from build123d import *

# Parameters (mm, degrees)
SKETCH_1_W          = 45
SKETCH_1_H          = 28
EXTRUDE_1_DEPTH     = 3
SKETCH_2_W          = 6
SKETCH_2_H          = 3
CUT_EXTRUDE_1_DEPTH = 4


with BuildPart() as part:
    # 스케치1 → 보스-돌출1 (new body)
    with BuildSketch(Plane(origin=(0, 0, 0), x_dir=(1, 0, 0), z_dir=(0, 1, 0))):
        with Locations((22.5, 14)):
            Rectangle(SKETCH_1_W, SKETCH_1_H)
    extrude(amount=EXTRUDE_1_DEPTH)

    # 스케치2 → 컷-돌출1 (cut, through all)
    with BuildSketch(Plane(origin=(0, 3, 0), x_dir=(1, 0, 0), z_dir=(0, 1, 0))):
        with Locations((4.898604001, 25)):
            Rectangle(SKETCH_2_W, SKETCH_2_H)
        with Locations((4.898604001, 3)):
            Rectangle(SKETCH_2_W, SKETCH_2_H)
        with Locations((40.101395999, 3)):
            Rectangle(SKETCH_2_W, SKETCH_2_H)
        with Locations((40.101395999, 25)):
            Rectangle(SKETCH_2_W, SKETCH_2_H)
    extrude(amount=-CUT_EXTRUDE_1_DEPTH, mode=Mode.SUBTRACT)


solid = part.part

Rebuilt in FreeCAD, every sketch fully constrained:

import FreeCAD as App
import Part
import Sketcher

V = App.Vector

doc = App.newDocument("Part")
body = doc.addObject("PartDesign::Body", "Body")

# Sketch on XZ plane
sketch1 = doc.addObject("Sketcher::SketchObject", "Sketch")
body.addObject(sketch1)
sketch1.AttachmentSupport = (doc.XZ_Plane, [""])
sketch1.MapMode = "FlatFace"
sketch1.addGeometry([
    Part.LineSegment(V(0, -28, 0), V(0, 0, 0)),
    Part.LineSegment(V(0, 0, 0), V(45, 0, 0)),
    Part.LineSegment(V(45, 0, 0), V(45, -28, 0)),
    Part.LineSegment(V(45, -28, 0), V(0, -28, 0)),
], False)
sketch1.addConstraint([
    Sketcher.Constraint("Coincident", 0, 2, 1, 1),
    Sketcher.Constraint("Coincident", 1, 2, 2, 1),
    Sketcher.Constraint("Coincident", 2, 2, 3, 1),
    Sketcher.Constraint("Coincident", 3, 2, 0, 1),
    Sketcher.Constraint("Vertical", 0),
    Sketcher.Constraint("Horizontal", 1),
    Sketcher.Constraint("Vertical", 2),
    Sketcher.Constraint("Horizontal", 3),
    Sketcher.Constraint("Coincident", 0, 2, -1, 1),
    Sketcher.Constraint("DistanceX", 1, 1, 1, 2, 45.0),
    Sketcher.Constraint("DistanceY", 0, 1, 0, 2, 28.0),
])
pad1 = doc.addObject("PartDesign::Pad", "Pad")
body.addObject(pad1)
pad1.Profile = sketch1
pad1.Length = 3
pad1.Reversed = True

# Sketch on XZ plane
sketch2 = doc.addObject("Sketcher::SketchObject", "Sketch001")
body.addObject(sketch2)
sketch2.AttachmentSupport = (doc.XZ_Plane, [""])
sketch2.MapMode = "FlatFace"
sketch2.AttachmentOffset = App.Placement(V(0, 0, -3), App.Rotation())
sketch2.addGeometry([
    Part.LineSegment(V(1.9, -26.5, 0), V(1.9, -23.5, 0)),  # 0
    Part.LineSegment(V(1.9, -23.5, 0), V(7.9, -23.5, 0)),  # 1
    Part.LineSegment(V(7.9, -23.5, 0), V(7.9, -26.5, 0)),  # 2
    Part.LineSegment(V(7.9, -26.5, 0), V(1.9, -26.5, 0)),  # 3
    Part.LineSegment(V(1.9, -4.5, 0), V(1.9, -1.5, 0)),  # 4
    Part.LineSegment(V(1.9, -1.5, 0), V(7.9, -1.5, 0)),  # 5
    Part.LineSegment(V(7.9, -1.5, 0), V(7.9, -4.5, 0)),  # 6
    Part.LineSegment(V(7.9, -4.5, 0), V(1.9, -4.5, 0)),  # 7
    Part.LineSegment(V(37.1, -4.5, 0), V(37.1, -1.5, 0)),  # 8
    Part.LineSegment(V(37.1, -1.5, 0), V(43.1, -1.5, 0)),  # 9
    Part.LineSegment(V(43.1, -1.5, 0), V(43.1, -4.5, 0)),  # 10
    Part.LineSegment(V(43.1, -4.5, 0), V(37.1, -4.5, 0)),  # 11
    Part.LineSegment(V(37.1, -26.5, 0), V(37.1, -23.5, 0)),  # 12
    Part.LineSegment(V(37.1, -23.5, 0), V(43.1, -23.5, 0)),  # 13
    Part.LineSegment(V(43.1, -23.5, 0), V(43.1, -26.5, 0)),  # 14
    Part.LineSegment(V(43.1, -26.5, 0), V(37.1, -26.5, 0)),  # 15
], False)
sketch2.addConstraint([
    Sketcher.Constraint("Coincident", 0, 2, 1, 1),
    Sketcher.Constraint("Coincident", 1, 2, 2, 1),
    Sketcher.Constraint("Coincident", 2, 2, 3, 1),
    Sketcher.Constraint("Coincident", 3, 2, 0, 1),
    Sketcher.Constraint("Coincident", 4, 2, 5, 1),
    Sketcher.Constraint("Coincident", 5, 2, 6, 1),
    Sketcher.Constraint("Coincident", 6, 2, 7, 1),
    Sketcher.Constraint("Coincident", 7, 2, 4, 1),
    Sketcher.Constraint("Coincident", 8, 2, 9, 1),
    Sketcher.Constraint("Coincident", 9, 2, 10, 1),
    Sketcher.Constraint("Coincident", 10, 2, 11, 1),
    Sketcher.Constraint("Coincident", 11, 2, 8, 1),
    Sketcher.Constraint("Coincident", 12, 2, 13, 1),
    Sketcher.Constraint("Coincident", 13, 2, 14, 1),
    Sketcher.Constraint("Coincident", 14, 2, 15, 1),
    Sketcher.Constraint("Coincident", 15, 2, 12, 1),
    Sketcher.Constraint("Vertical", 0),
    Sketcher.Constraint("Horizontal", 1),
    Sketcher.Constraint("Vertical", 2),
    Sketcher.Constraint("Horizontal", 3),
    Sketcher.Constraint("Vertical", 4),
    Sketcher.Constraint("Horizontal", 5),
    Sketcher.Constraint("Vertical", 6),
    Sketcher.Constraint("Horizontal", 7),
    Sketcher.Constraint("Vertical", 8),
    Sketcher.Constraint("Horizontal", 9),
    Sketcher.Constraint("Vertical", 10),
    Sketcher.Constraint("Horizontal", 11),
    Sketcher.Constraint("Vertical", 12),
    Sketcher.Constraint("Horizontal", 13),
    Sketcher.Constraint("Vertical", 14),
    Sketcher.Constraint("Horizontal", 15),
    Sketcher.Constraint("Horizontal", 5, 2, 8, 2),
    Sketcher.Constraint("Horizontal", 7, 2, 10, 2),
    Sketcher.Constraint("Horizontal", 1, 2, 12, 2),
    Sketcher.Constraint("Horizontal", 3, 2, 14, 2),
    Sketcher.Constraint("Vertical", 3, 2, 4, 2),
    Sketcher.Constraint("Vertical", 2, 2, 5, 2),
    Sketcher.Constraint("Vertical", 11, 2, 12, 2),
    Sketcher.Constraint("Vertical", 10, 2, 13, 2),
    Sketcher.Constraint("Equal", 7, 9),
    Sketcher.Constraint("Equal", 2, 4),
    Sketcher.Constraint("DistanceX", 1, 1, 1, 2, 6.0),
    Sketcher.Constraint("DistanceY", 0, 1, 0, 2, 3.0),
    Sketcher.Constraint("DistanceY", 0, 2, 4, 2, 22.0),
    Sketcher.Constraint("DistanceY", 0, 2, -1, 1, 23.5),
    Sketcher.Constraint("DistanceX", 5, 2, 8, 2, 29.202792),
    Sketcher.Constraint("DistanceX", -1, 1, 0, 2, 1.898604),
])
pocket1 = doc.addObject("PartDesign::Pocket", "Pocket")
body.addObject(pocket1)
pocket1.Profile = sketch2
pocket1.Type = "ThroughAll"
pocket1.Reversed = True

doc.recompute()
